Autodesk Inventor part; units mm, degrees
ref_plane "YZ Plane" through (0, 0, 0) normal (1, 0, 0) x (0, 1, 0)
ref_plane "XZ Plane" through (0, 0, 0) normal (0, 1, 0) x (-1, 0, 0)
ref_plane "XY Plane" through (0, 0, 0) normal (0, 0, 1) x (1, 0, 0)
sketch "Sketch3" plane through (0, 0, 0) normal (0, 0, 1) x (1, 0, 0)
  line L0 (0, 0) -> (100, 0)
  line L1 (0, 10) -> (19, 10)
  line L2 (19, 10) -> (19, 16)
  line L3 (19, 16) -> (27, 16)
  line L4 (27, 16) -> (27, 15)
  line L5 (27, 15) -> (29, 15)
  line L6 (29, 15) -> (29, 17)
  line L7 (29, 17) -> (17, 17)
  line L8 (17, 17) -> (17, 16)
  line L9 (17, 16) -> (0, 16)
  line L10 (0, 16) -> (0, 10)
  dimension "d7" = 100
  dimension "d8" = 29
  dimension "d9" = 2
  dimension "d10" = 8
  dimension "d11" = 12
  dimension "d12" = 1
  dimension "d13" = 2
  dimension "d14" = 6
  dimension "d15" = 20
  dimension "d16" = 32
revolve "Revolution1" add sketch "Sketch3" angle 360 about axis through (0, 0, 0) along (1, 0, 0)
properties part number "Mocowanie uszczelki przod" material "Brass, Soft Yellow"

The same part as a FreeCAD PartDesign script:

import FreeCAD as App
import Part
import Sketcher

V = App.Vector


def add_polygon(sketch, points):
    """Adds a closed chain of lines whose ends are joined by coincident constraints."""
    first, n = sketch.GeometryCount, len(points)
    for a, b in zip(points, points[1:] + points[:1]):
        sketch.addGeometry(Part.LineSegment(App.Vector(*a, 0), App.Vector(*b, 0)), False)
    for i in range(n):
        sketch.addConstraint(Sketcher.Constraint("Coincident", first + i, 2, first + (i + 1) % n, 1))

doc = App.newDocument("Part")
body = doc.addObject("PartDesign::Body", "Body")

# Sketch on XY plane
sketch1 = doc.addObject("Sketcher::SketchObject", "Sketch")
body.addObject(sketch1)
sketch1.AttachmentSupport = (doc.XY_Plane, [""])
sketch1.MapMode = "FlatFace"
add_polygon(sketch1, [(0, 16), (0, 10), (19, 10), (19, 16), (27, 16), (27, 15), (29, 15), (29, 17), (17, 17), (17, 16)])  # lines 0-9
sketch1.addConstraint(Sketcher.Constraint("Vertical", 0))
sketch1.addConstraint(Sketcher.Constraint("Horizontal", 1))
sketch1.addConstraint(Sketcher.Constraint("Vertical", 2))
sketch1.addConstraint(Sketcher.Constraint("Horizontal", 3))
sketch1.addConstraint(Sketcher.Constraint("Vertical", 4))
sketch1.addConstraint(Sketcher.Constraint("Horizontal", 5))
sketch1.addConstraint(Sketcher.Constraint("Vertical", 6))
sketch1.addConstraint(Sketcher.Constraint("Horizontal", 7))
sketch1.addConstraint(Sketcher.Constraint("Vertical", 8))
sketch1.addConstraint(Sketcher.Constraint("Horizontal", 9))
sketch1.addConstraint(Sketcher.Constraint("PointOnObject", 0, 2, -2))
sketch1.addConstraint(Sketcher.Constraint("Horizontal", 3, 2, 8, 2))
sketch1.addConstraint(Sketcher.Constraint("Equal", 5, 6))
sketch1.addConstraint(Sketcher.Constraint("Equal", 4, 8))
sketch1.addConstraint(Sketcher.Constraint("DistanceX", 3, 1, 3, 2, 8.0))
sketch1.addConstraint(Sketcher.Constraint("DistanceX", 5, 1, 5, 2, 2.0))
sketch1.addConstraint(Sketcher.Constraint("DistanceX", 7, 2, 7, 1, 12.0))
sketch1.addConstraint(Sketcher.Constraint("DistanceY", 0, 2, 0, 1, 6.0))
sketch1.addConstraint(Sketcher.Constraint("DistanceX", -1, 1, 5, 2, 29.0))
sketch1.addConstraint(Sketcher.Constraint("DistanceY", -1, 1, 0, 2, 10.0))
revolution = doc.addObject("PartDesign::Revolution", "Revolution")
body.addObject(revolution)
revolution.Profile = sketch1
revolution.ReferenceAxis = (sketch1, ["H_Axis"])
revolution.Angle = 360

doc.recompute()
